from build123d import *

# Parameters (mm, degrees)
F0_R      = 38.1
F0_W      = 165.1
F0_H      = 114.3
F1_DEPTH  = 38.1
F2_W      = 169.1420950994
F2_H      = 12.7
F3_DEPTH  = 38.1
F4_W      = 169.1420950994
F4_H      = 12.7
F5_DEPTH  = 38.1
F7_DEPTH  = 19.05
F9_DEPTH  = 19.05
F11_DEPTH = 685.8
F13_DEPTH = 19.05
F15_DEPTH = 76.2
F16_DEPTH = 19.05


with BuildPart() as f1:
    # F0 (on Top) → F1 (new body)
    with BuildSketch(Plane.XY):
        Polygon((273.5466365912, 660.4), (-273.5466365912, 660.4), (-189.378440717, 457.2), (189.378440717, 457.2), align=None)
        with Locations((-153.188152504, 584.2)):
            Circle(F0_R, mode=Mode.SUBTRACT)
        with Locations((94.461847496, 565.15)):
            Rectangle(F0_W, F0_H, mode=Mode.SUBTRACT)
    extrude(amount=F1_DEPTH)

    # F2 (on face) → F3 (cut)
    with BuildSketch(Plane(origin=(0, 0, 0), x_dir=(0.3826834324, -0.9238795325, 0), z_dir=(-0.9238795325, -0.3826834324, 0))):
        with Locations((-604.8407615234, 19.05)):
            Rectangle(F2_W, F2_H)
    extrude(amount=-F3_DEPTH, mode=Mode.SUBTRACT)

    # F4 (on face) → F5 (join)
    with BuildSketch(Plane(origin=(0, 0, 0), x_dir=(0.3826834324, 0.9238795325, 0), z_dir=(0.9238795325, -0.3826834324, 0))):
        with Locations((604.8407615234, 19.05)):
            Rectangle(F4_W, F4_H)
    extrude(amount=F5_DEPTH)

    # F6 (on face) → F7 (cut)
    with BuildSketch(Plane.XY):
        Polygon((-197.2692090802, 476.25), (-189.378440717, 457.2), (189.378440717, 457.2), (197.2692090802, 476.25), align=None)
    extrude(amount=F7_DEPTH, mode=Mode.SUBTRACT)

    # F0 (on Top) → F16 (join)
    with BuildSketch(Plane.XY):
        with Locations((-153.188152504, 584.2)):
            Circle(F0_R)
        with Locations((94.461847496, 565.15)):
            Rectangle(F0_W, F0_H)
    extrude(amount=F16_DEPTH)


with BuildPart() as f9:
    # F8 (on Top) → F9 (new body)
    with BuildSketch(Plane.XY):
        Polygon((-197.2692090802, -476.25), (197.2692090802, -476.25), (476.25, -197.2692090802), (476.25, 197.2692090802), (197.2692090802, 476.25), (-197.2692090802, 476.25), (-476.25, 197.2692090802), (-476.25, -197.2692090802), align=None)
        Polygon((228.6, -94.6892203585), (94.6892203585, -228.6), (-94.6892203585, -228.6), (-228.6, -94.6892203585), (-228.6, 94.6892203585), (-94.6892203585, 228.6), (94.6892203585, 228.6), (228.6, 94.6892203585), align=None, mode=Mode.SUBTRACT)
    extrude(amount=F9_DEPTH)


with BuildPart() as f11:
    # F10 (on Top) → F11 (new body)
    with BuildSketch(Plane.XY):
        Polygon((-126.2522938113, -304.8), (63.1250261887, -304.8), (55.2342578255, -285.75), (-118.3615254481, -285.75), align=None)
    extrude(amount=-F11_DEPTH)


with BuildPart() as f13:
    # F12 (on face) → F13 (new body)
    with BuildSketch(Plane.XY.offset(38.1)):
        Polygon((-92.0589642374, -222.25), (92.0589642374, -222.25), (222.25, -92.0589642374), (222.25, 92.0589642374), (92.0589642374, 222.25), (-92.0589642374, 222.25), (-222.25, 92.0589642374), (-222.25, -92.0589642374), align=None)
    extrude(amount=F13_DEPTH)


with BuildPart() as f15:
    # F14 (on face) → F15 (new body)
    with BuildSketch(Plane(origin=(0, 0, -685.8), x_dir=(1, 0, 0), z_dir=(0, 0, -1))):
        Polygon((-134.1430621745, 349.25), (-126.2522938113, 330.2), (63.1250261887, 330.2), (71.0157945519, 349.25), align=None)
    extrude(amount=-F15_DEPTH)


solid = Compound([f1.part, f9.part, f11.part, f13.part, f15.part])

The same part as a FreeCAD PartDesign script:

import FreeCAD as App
import Part
import Sketcher

V = App.Vector
Q = App.Units.Quantity

doc = App.newDocument("Part")
body = doc.addObject("PartDesign::Body", "Body")

sketch1 = body.newObject("Sketcher::SketchObject", "Sketch")
sketch1.AttachmentSupport = (doc.getObject("XY_Plane"), [""])
sketch1.MapMode = "FlatFace"
sketch1.addGeometry([
    Part.LineSegment(V(273.546637, 660.4, 0), V(-273.546637, 660.4, 0)),
    Part.LineSegment(V(-273.546637, 660.4, 0), V(-189.378441, 457.2, 0)),
    Part.LineSegment(V(-189.378441, 457.2, 0), V(189.378441, 457.2, 0)),
    Part.LineSegment(V(189.378441, 457.2, 0), V(273.546637, 660.4, 0)),
    Part.LineSegment(V(177.011847, 508, 0), V(11.911847, 508, 0)),
    Part.LineSegment(V(11.911847, 508, 0), V(11.911847, 622.3, 0)),
    Part.LineSegment(V(11.911847, 622.3, 0), V(177.011847, 622.3, 0)),
    Part.LineSegment(V(177.011847, 622.3, 0), V(177.011847, 508, 0)),
    Part.Circle(V(-153.188153, 584.2, 0), V(0, 0, 1), 38.1),
], False)
sketch1.addConstraint([
    Sketcher.Constraint("Coincident", 0, 2, 1, 1),
    Sketcher.Constraint("Coincident", 1, 2, 2, 1),
    Sketcher.Constraint("Coincident", 2, 2, 3, 1),
    Sketcher.Constraint("Coincident", 3, 2, 0, 1),
    Sketcher.Constraint("Coincident", 4, 2, 5, 1),
    Sketcher.Constraint("Coincident", 5, 2, 6, 1),
    Sketcher.Constraint("Coincident", 6, 2, 7, 1),
    Sketcher.Constraint("Coincident", 7, 2, 4, 1),
    Sketcher.Constraint("Horizontal", 0),
    Sketcher.Constraint("Horizontal", 2),
    Sketcher.Constraint("Horizontal", 4),
    Sketcher.Constraint("Vertical", 5),
    Sketcher.Constraint("Horizontal", 6),
    Sketcher.Constraint("Vertical", 7),
    Sketcher.Constraint("Equal", 1, 3),
    Sketcher.Constraint("Diameter", 8, Q("3 in")),
    Sketcher.Constraint("DistanceX", 4, 2, 4, 1, Q("6.5 in")),
    Sketcher.Constraint("DistanceY", 5, 1, 5, 2, Q("4.5 in")),
    Sketcher.Constraint("DistanceY", -1, 1, 8, 3, Q("23 in")),
    Sketcher.Constraint("DistanceY", -1, 1, 0, 2, Q("26 in")),
    Sketcher.Constraint("DistanceY", -1, 1, 1, 2, Q("18 in")),
    Sketcher.Constraint("DistanceY", -1, 1, 4, 2, Q("20 in")),
    Sketcher.Constraint("DistanceX", 8, 3, 6, 2, Q("13 in")),
    Sketcher.Constraint("Angle", 1, Q("-67.5 deg")),
    Sketcher.Constraint("DistanceX", 2, 1, 2, 2, 378.756881),
    Sketcher.Constraint("DistanceX", 1, 2, -1, 1, 189.378441),
    Sketcher.Constraint("DistanceX", 1, 2, 8, 3, 36.190288),
])
pad1 = body.newObject("PartDesign::Pad", "Pad")
pad1.Profile = sketch1
pad1.Length = Q("1.5 in")

sketch2 = body.newObject("Sketcher::SketchObject", "Sketch001")
sketch2.Placement = App.Placement(V(0, 0, 0), App.Rotation(V(0.382683432, -0.923879532, 0), V(0, 0, 0.999999999), V(-0.923879532, -0.382683432, 0), "ZXY"))
sketch2.addGeometry([
    Part.LineSegment(V(-689.411808, 25.4, 0), V(-689.411808, 12.7, 0)),
    Part.LineSegment(V(-689.411808, 12.7, 0), V(-520.269713, 12.7, 0)),
    Part.LineSegment(V(-520.269713, 12.7, 0), V(-520.269713, 25.4, 0)),
    Part.LineSegment(V(-520.269713, 25.4, 0), V(-689.411808, 25.4, 0)),
], False)
sketch2.addConstraint([
    Sketcher.Constraint("Coincident", 0, 2, 1, 1),
    Sketcher.Constraint("Coincident", 1, 2, 2, 1),
    Sketcher.Constraint("Coincident", 2, 2, 3, 1),
    Sketcher.Constraint("Coincident", 3, 2, 0, 1),
    Sketcher.Constraint("Vertical", 0),
    Sketcher.Constraint("Horizontal", 1),
    Sketcher.Constraint("Vertical", 2),
    Sketcher.Constraint("Horizontal", 3),
    Sketcher.Constraint("DistanceY", 0, 2, 0, 1, Q("0.5 in")),
    Sketcher.Constraint("DistanceY", -1, 1, 2, 2, Q("1 in")),
    Sketcher.Constraint("DistanceX", 1, 1, 1, 2, 169.142095),
    Sketcher.Constraint("DistanceX", 0, 2, -1, 1, 689.411808),
])
pocket1 = body.newObject("PartDesign::Pocket", "Pocket")
pocket1.Profile = sketch2
pocket1.Length = Q("1.5 in")

sketch3 = body.newObject("Sketcher::SketchObject", "Sketch002")
sketch3.Placement = App.Placement(V(0, 0, 0), App.Rotation(V(0.382683432, 0.923879532, 0), V(0, 0, 0.999999999), V(0.923879532, -0.382683432, 0), "ZXY"))
sketch3.addGeometry([
    Part.LineSegment(V(520.269713, 25.4, 0), V(520.269713, 12.7, 0)),
    Part.LineSegment(V(520.269713, 12.7, 0), V(689.411808, 12.7, 0)),
    Part.LineSegment(V(689.411808, 12.7, 0), V(689.411808, 25.4, 0)),
    Part.LineSegment(V(689.411808, 25.4, 0), V(520.269713, 25.4, 0)),
], False)
sketch3.addConstraint([
    Sketcher.Constraint("Coincident", 0, 2, 1, 1),
    Sketcher.Constraint("Coincident", 1, 2, 2, 1),
    Sketcher.Constraint("Coincident", 2, 2, 3, 1),
    Sketcher.Constraint("Coincident", 3, 2, 0, 1),
    Sketcher.Constraint("Vertical", 0),
    Sketcher.Constraint("Horizontal", 1),
    Sketcher.Constraint("Vertical", 2),
    Sketcher.Constraint("Horizontal", 3),
    Sketcher.Constraint("DistanceY", 0, 2, 0, 1, Q("0.5 in")),
    Sketcher.Constraint("DistanceY", -1, 1, 2, 2, Q("1 in")),
    Sketcher.Constraint("DistanceX", 1, 1, 1, 2, 169.142095),
    Sketcher.Constraint("DistanceX", -1, 1, 1, 2, 689.411808),
])
pad2 = body.newObject("PartDesign::Pad", "Pad001")
pad2.Profile = sketch3
pad2.Length = Q("1.5 in")

sketch4 = body.newObject("Sketcher::SketchObject", "Sketch003")
sketch4.AttachmentSupport = (doc.getObject("XY_Plane"), [""])
sketch4.MapMode = "FlatFace"
sketch4.addGeometry([
    Part.LineSegment(V(-197.269209, 476.25, 0), V(-189.378441, 457.2, 0)),
    Part.LineSegment(V(-189.378441, 457.2, 0), V(189.378441, 457.2, 0)),
    Part.LineSegment(V(189.378441, 457.2, 0), V(197.269209, 476.25, 0)),
    Part.LineSegment(V(197.269209, 476.25, 0), V(-197.269209, 476.25, 0)),
], False)
sketch4.addConstraint([
    Sketcher.Constraint("Coincident", 0, 2, 1, 1),
    Sketcher.Constraint("Coincident", 1, 2, 2, 1),
    Sketcher.Constraint("Coincident", 2, 2, 3, 1),
    Sketcher.Constraint("Coincident", 3, 2, 0, 1),
    Sketcher.Constraint("Horizontal", 1),
    Sketcher.Constraint("Horizontal", 3),
    Sketcher.Constraint("Equal", 0, 2),
    Sketcher.Constraint("DistanceY", -1, 1, 0, 2, Q("18 in")),
    Sketcher.Constraint("Angle", 0, Q("-67.5 deg")),
    Sketcher.Constraint("DistanceY", -1, 1, 2, 2, Q("18.75 in")),
    Sketcher.Constraint("DistanceX", 1, 1, 1, 2, 378.756881),
    Sketcher.Constraint("DistanceX", 0, 2, -1, 1, 189.378441),
])
pocket2 = body.newObject("PartDesign::Pocket", "Pocket001")
pocket2.Profile = sketch4
pocket2.Length = Q("0.75 in")
pocket2.Reversed = True

sketch5 = body.newObject("Sketcher::SketchObject", "Sketch004")
sketch5.AttachmentSupport = (doc.getObject("XY_Plane"), [""])
sketch5.MapMode = "FlatFace"
sketch5.addGeometry([
    Part.Circle(V(-153.188153, 584.2, 0), V(0, 0, 1), 38.1),
    Part.LineSegment(V(11.911847, 622.3, 0), V(11.911847, 508, 0)),
    Part.LineSegment(V(11.911847, 508, 0), V(177.011847, 508, 0)),
    Part.LineSegment(V(177.011847, 508, 0), V(177.011847, 622.3, 0)),
    Part.LineSegment(V(177.011847, 622.3, 0), V(11.911847, 622.3, 0)),
], False)
sketch5.addConstraint([
    Sketcher.Constraint("Coincident", 1, 2, 2, 1),
    Sketcher.Constraint("Coincident", 2, 2, 3, 1),
    Sketcher.Constraint("Coincident", 3, 2, 4, 1),
    Sketcher.Constraint("Coincident", 4, 2, 1, 1),
    Sketcher.Constraint("Vertical", 1),
    Sketcher.Constraint("Horizontal", 2),
    Sketcher.Constraint("Vertical", 3),
    Sketcher.Constraint("Horizontal", 4),
    Sketcher.Constraint("Diameter", 0, Q("3 in")),
    Sketcher.Constraint("DistanceX", 2, 1, 2, 2, Q("6.5 in")),
    Sketcher.Constraint("DistanceY", 1, 2, 1, 1, Q("4.5 in")),
    Sketcher.Constraint("DistanceY", -1, 1, 0, 3, Q("23 in")),
    Sketcher.Constraint("DistanceY", -1, 1, 1, 2, Q("20 in")),
    Sketcher.Constraint("DistanceX", 0, 3, 2, 2, Q("13 in")),
    Sketcher.Constraint("DistanceX", 0, 3, -1, 1, 153.188153),
])
pad3 = body.newObject("PartDesign::Pad", "Pad002")
pad3.Profile = sketch5
pad3.Length = Q("0.75 in")
body2 = doc.addObject("PartDesign::Body", "Body001")

sketch6 = body2.newObject("Sketcher::SketchObject", "Sketch005")
sketch6.AttachmentSupport = (doc.getObject("XY_Plane001"), [""])
sketch6.MapMode = "FlatFace"
sketch6.addGeometry([
    Part.LineSegment(V(-197.269209, -476.25, 0), V(197.269209, -476.25, 0)),
    Part.LineSegment(V(197.269209, -476.25, 0), V(476.25, -197.269209, 0)),
    Part.LineSegment(V(476.25, -197.269209, 0), V(476.25, 197.269209, 0)),
    Part.LineSegment(V(476.25, 197.269209, 0), V(197.269209, 476.25, 0)),
    Part.LineSegment(V(197.269209, 476.25, 0), V(-197.269209, 476.25, 0)),
    Part.LineSegment(V(-197.269209, 476.25, 0), V(-476.25, 197.269209, 0)),
    Part.LineSegment(V(-476.25, 197.269209, 0), V(-476.25, -197.269209, 0)),
    Part.LineSegment(V(-476.25, -197.269209, 0), V(-197.269209, -476.25, 0)),
    Part.LineSegment(V(228.6, 94.68922, 0), V(228.6, -94.68922, 0)),
    Part.LineSegment(V(228.6, -94.68922, 0), V(94.68922, -228.6, 0)),
    Part.LineSegment(V(94.68922, -228.6, 0), V(-94.68922, -228.6, 0)),
    Part.LineSegment(V(-94.68922, -228.6, 0), V(-228.6, -94.68922, 0)),
    Part.LineSegment(V(-228.6, -94.68922, 0), V(-228.6, 94.68922, 0)),
    Part.LineSegment(V(-228.6, 94.68922, 0), V(-94.68922, 228.6, 0)),
    Part.LineSegment(V(-94.68922, 228.6, 0), V(94.68922, 228.6, 0)),
    Part.LineSegment(V(94.68922, 228.6, 0), V(228.6, 94.68922, 0)),
], False)
sketch6.addConstraint([
    Sketcher.Constraint("Coincident", 0, 2, 1, 1),
    Sketcher.Constraint("Coincident", 1, 2, 2, 1),
    Sketcher.Constraint("Coincident", 2, 2, 3, 1),
    Sketcher.Constraint("Coincident", 3, 2, 4, 1),
    Sketcher.Constraint("Coincident", 4, 2, 5, 1),
    Sketcher.Constraint("Coincident", 5, 2, 6, 1),
    Sketcher.Constraint("Coincident", 6, 2, 7, 1),
    Sketcher.Constraint("Coincident", 7, 2, 0, 1),
    Sketcher.Constraint("Coincident", 8, 2, 9, 1),
    Sketcher.Constraint("Coincident", 9, 2, 10, 1),
    Sketcher.Constraint("Coincident", 10, 2, 11, 1),
    Sketcher.Constraint("Coincident", 11, 2, 12, 1),
    Sketcher.Constraint("Coincident", 12, 2, 13, 1),
    Sketcher.Constraint("Coincident", 13, 2, 14, 1),
    Sketcher.Constraint("Coincident", 14, 2, 15, 1),
    Sketcher.Constraint("Coincident", 15, 2, 8, 1),
    Sketcher.Constraint("Horizontal", 0),
    Sketcher.Constraint("Vertical", 2),
    Sketcher.Constraint("Horizontal", 4),
    Sketcher.Constraint("Vertical", 6),
    Sketcher.Constraint("Vertical", 8),
    Sketcher.Constraint("Horizontal", 10),
    Sketcher.Constraint("Vertical", 12),
    Sketcher.Constraint("Horizontal", 14),
    Sketcher.Constraint("Symmetric", 0, 2, 4, 2, -1, 1),
    Sketcher.Constraint("Symmetric", 1, 2, 5, 2, -1, 1),
    Sketcher.Constraint("Symmetric", 8, 2, 12, 2, -1, 1),
    Sketcher.Constraint("Symmetric", 9, 2, 13, 2, -1, 1),
    Sketcher.Constraint("Perpendicular", 1, 3),
    Sketcher.Constraint("Perpendicular", 5, 7),
    Sketcher.Constraint("Perpendicular", 7, 9),
    Sketcher.Constraint("Perpendicular", 9, 11),
    Sketcher.Constraint("Perpendicular", 13, 15),
    Sketcher.Constraint("Horizontal", 2, 2, 5, 2),
    Sketcher.Constraint("Horizontal", 1, 2, 6, 2),
    Sketcher.Constraint("Horizontal", 8, 2, 11, 2),
    Sketcher.Constraint("Horizontal", 12, 2, 15, 2),
    Sketcher.Constraint("Vertical", 0, 2, 3, 2),
    Sketcher.Constraint("Equal", 4, 2),
    Sketcher.Constraint("Equal", 14, 8),
    Sketcher.Constraint("DistanceX", -1, 1, 8, 2, Q("9 in")),
    Sketcher.Constraint("DistanceY", 0, 2, 3, 2, Q("37.5 in")),
    Sketcher.Constraint("DistanceX", 0, 1, 0, 2, 394.538418),
    Sketcher.Constraint("DistanceX", 10, 2, 10, 1, 189.378441),
])
pad4 = body2.newObject("PartDesign::Pad", "Pad003")
pad4.Profile = sketch6
pad4.Length = Q("0.75 in")
body3 = doc.addObject("PartDesign::Body", "Body002")

sketch7 = body3.newObject("Sketcher::SketchObject", "Sketch006")
sketch7.AttachmentSupport = (doc.getObject("XY_Plane002"), [""])
sketch7.MapMode = "FlatFace"
sketch7.addGeometry([
    Part.LineSegment(V(-126.252294, -304.8, 0), V(63.125026, -304.8, 0)),
    Part.LineSegment(V(63.125026, -304.8, 0), V(55.234258, -285.75, 0)),
    Part.LineSegment(V(55.234258, -285.75, 0), V(-118.361525, -285.75, 0)),
    Part.LineSegment(V(-118.361525, -285.75, 0), V(-126.252294, -304.8, 0)),
], False)
sketch7.addConstraint([
    Sketcher.Constraint("Coincident", 0, 2, 1, 1),
    Sketcher.Constraint("Coincident", 1, 2, 2, 1),
    Sketcher.Constraint("Coincident", 2, 2, 3, 1),
    Sketcher.Constraint("Coincident", 3, 2, 0, 1),
    Sketcher.Constraint("Horizontal", 0),
    Sketcher.Constraint("Horizontal", 2),
    Sketcher.Constraint("Equal", 1, 3),
    Sketcher.Constraint("DistanceY", 0, 2, -1, 1, Q("12 in")),
    Sketcher.Constraint("Angle", 1, Q("112.5 deg")),
    Sketcher.Constraint("DistanceY", 1, 2, -1, 1, Q("11.25 in")),
    Sketcher.Constraint("DistanceX", 0, 1, 0, 2, Q("7.4558 in")),
    Sketcher.Constraint("DistanceX", -1, 1, 0, 2, 63.125026),
])
pad5 = body3.newObject("PartDesign::Pad", "Pad004")
pad5.Profile = sketch7
pad5.Length = Q("27 in")
pad5.Reversed = True
body4 = doc.addObject("PartDesign::Body", "Body003")

sketch8 = body4.newObject("Sketcher::SketchObject", "Sketch007")
sketch8.AttachmentSupport = (doc.getObject("XY_Plane003"), [""])
sketch8.MapMode = "FlatFace"
sketch8.AttachmentOffset = App.Placement(V(0, 0, 1.5 * 25.4), App.Rotation())
sketch8.addGeometry([
    Part.LineSegment(V(-92.058964, -222.25, 0), V(92.058964, -222.25, 0)),
    Part.LineSegment(V(92.058964, -222.25, 0), V(222.25, -92.058964, 0)),
    Part.LineSegment(V(222.25, -92.058964, 0), V(222.25, 92.058964, 0)),
    Part.LineSegment(V(222.25, 92.058964, 0), V(92.058964, 222.25, 0)),
    Part.LineSegment(V(92.058964, 222.25, 0), V(-92.058964, 222.25, 0)),
    Part.LineSegment(V(-92.058964, 222.25, 0), V(-222.25, 92.058964, 0)),
    Part.LineSegment(V(-222.25, 92.058964, 0), V(-222.25, -92.058964, 0)),
    Part.LineSegment(V(-222.25, -92.058964, 0), V(-92.058964, -222.25, 0)),
], False)
sketch8.addConstraint([
    Sketcher.Constraint("Coincident", 0, 2, 1, 1),
    Sketcher.Constraint("Coincident", 1, 2, 2, 1),
    Sketcher.Constraint("Coincident", 2, 2, 3, 1),
    Sketcher.Constraint("Coincident", 3, 2, 4, 1),
    Sketcher.Constraint("Coincident", 4, 2, 5, 1),
    Sketcher.Constraint("Coincident", 5, 2, 6, 1),
    Sketcher.Constraint("Coincident", 6, 2, 7, 1),
    Sketcher.Constraint("Coincident", 7, 2, 0, 1),
    Sketcher.Constraint("Horizontal", 0),
    Sketcher.Constraint("Vertical", 2),
    Sketcher.Constraint("Horizontal", 4),
    Sketcher.Constraint("Vertical", 6),
    Sketcher.Constraint("Symmetric", 0, 2, 4, 2, -1, 1),
    Sketcher.Constraint("Symmetric", 1, 2, 5, 2, -1, 1),
    Sketcher.Constraint("Perpendicular", 1, 3),
    Sketcher.Constraint("Perpendicular", 5, 7),
    Sketcher.Constraint("Horizontal", 2, 2, 5, 2),
    Sketcher.Constraint("Horizontal", 1, 2, 6, 2),
    Sketcher.Constraint("Vertical", 0, 2, 3, 2),
    Sketcher.Constraint("Equal", 4, 2),
    Sketcher.Constraint("DistanceY", 0, 2, 3, 2, Q("17.5 in")),
    Sketcher.Constraint("DistanceX", 0, 1, 0, 2, 184.117928),
])
pad6 = body4.newObject("PartDesign::Pad", "Pad005")
pad6.Profile = sketch8
pad6.Length = Q("0.75 in")
body5 = doc.addObject("PartDesign::Body", "Body004")

sketch9 = body5.newObject("Sketcher::SketchObject", "Sketch008")
sketch9.AttachmentSupport = (doc.getObject("XY_Plane004"), [""])
sketch9.MapMode = "FlatFace"
sketch9.AttachmentOffset = App.Placement(V(0, 0, -27 * 25.4), App.Rotation())
sketch9.addGeometry([
    Part.LineSegment(V(-134.143062, -349.25, 0), V(-126.252294, -330.2, 0)),
    Part.LineSegment(V(-126.252294, -330.2, 0), V(63.125026, -330.2, 0)),
    Part.LineSegment(V(63.125026, -330.2, 0), V(71.015795, -349.25, 0)),
    Part.LineSegment(V(71.015795, -349.25, 0), V(-134.143062, -349.25, 0)),
], False)
sketch9.addConstraint([
    Sketcher.Constraint("Coincident", 0, 2, 1, 1),
    Sketcher.Constraint("Coincident", 1, 2, 2, 1),
    Sketcher.Constraint("Coincident", 2, 2, 3, 1),
    Sketcher.Constraint("Coincident", 3, 2, 0, 1),
    Sketcher.Constraint("Horizontal", 1),
    Sketcher.Constraint("Horizontal", 3),
    Sketcher.Constraint("Equal", 0, 2),
    Sketcher.Constraint("DistanceY", 0, 2, -1, 1, Q("13 in")),
    Sketcher.Constraint("Angle", 0, Q("67.5 deg")),
    Sketcher.Constraint("DistanceY", 2, 2, -1, 1, Q("13.75 in")),
    Sketcher.Constraint("DistanceX", 1, 1, 1, 2, Q("7.4558 in")),
    Sketcher.Constraint("DistanceX", 0, 2, -1, 1, 126.252294),
])
pad7 = body5.newObject("PartDesign::Pad", "Pad006")
pad7.Profile = sketch9
pad7.Length = Q("3 in")

doc.recompute()
